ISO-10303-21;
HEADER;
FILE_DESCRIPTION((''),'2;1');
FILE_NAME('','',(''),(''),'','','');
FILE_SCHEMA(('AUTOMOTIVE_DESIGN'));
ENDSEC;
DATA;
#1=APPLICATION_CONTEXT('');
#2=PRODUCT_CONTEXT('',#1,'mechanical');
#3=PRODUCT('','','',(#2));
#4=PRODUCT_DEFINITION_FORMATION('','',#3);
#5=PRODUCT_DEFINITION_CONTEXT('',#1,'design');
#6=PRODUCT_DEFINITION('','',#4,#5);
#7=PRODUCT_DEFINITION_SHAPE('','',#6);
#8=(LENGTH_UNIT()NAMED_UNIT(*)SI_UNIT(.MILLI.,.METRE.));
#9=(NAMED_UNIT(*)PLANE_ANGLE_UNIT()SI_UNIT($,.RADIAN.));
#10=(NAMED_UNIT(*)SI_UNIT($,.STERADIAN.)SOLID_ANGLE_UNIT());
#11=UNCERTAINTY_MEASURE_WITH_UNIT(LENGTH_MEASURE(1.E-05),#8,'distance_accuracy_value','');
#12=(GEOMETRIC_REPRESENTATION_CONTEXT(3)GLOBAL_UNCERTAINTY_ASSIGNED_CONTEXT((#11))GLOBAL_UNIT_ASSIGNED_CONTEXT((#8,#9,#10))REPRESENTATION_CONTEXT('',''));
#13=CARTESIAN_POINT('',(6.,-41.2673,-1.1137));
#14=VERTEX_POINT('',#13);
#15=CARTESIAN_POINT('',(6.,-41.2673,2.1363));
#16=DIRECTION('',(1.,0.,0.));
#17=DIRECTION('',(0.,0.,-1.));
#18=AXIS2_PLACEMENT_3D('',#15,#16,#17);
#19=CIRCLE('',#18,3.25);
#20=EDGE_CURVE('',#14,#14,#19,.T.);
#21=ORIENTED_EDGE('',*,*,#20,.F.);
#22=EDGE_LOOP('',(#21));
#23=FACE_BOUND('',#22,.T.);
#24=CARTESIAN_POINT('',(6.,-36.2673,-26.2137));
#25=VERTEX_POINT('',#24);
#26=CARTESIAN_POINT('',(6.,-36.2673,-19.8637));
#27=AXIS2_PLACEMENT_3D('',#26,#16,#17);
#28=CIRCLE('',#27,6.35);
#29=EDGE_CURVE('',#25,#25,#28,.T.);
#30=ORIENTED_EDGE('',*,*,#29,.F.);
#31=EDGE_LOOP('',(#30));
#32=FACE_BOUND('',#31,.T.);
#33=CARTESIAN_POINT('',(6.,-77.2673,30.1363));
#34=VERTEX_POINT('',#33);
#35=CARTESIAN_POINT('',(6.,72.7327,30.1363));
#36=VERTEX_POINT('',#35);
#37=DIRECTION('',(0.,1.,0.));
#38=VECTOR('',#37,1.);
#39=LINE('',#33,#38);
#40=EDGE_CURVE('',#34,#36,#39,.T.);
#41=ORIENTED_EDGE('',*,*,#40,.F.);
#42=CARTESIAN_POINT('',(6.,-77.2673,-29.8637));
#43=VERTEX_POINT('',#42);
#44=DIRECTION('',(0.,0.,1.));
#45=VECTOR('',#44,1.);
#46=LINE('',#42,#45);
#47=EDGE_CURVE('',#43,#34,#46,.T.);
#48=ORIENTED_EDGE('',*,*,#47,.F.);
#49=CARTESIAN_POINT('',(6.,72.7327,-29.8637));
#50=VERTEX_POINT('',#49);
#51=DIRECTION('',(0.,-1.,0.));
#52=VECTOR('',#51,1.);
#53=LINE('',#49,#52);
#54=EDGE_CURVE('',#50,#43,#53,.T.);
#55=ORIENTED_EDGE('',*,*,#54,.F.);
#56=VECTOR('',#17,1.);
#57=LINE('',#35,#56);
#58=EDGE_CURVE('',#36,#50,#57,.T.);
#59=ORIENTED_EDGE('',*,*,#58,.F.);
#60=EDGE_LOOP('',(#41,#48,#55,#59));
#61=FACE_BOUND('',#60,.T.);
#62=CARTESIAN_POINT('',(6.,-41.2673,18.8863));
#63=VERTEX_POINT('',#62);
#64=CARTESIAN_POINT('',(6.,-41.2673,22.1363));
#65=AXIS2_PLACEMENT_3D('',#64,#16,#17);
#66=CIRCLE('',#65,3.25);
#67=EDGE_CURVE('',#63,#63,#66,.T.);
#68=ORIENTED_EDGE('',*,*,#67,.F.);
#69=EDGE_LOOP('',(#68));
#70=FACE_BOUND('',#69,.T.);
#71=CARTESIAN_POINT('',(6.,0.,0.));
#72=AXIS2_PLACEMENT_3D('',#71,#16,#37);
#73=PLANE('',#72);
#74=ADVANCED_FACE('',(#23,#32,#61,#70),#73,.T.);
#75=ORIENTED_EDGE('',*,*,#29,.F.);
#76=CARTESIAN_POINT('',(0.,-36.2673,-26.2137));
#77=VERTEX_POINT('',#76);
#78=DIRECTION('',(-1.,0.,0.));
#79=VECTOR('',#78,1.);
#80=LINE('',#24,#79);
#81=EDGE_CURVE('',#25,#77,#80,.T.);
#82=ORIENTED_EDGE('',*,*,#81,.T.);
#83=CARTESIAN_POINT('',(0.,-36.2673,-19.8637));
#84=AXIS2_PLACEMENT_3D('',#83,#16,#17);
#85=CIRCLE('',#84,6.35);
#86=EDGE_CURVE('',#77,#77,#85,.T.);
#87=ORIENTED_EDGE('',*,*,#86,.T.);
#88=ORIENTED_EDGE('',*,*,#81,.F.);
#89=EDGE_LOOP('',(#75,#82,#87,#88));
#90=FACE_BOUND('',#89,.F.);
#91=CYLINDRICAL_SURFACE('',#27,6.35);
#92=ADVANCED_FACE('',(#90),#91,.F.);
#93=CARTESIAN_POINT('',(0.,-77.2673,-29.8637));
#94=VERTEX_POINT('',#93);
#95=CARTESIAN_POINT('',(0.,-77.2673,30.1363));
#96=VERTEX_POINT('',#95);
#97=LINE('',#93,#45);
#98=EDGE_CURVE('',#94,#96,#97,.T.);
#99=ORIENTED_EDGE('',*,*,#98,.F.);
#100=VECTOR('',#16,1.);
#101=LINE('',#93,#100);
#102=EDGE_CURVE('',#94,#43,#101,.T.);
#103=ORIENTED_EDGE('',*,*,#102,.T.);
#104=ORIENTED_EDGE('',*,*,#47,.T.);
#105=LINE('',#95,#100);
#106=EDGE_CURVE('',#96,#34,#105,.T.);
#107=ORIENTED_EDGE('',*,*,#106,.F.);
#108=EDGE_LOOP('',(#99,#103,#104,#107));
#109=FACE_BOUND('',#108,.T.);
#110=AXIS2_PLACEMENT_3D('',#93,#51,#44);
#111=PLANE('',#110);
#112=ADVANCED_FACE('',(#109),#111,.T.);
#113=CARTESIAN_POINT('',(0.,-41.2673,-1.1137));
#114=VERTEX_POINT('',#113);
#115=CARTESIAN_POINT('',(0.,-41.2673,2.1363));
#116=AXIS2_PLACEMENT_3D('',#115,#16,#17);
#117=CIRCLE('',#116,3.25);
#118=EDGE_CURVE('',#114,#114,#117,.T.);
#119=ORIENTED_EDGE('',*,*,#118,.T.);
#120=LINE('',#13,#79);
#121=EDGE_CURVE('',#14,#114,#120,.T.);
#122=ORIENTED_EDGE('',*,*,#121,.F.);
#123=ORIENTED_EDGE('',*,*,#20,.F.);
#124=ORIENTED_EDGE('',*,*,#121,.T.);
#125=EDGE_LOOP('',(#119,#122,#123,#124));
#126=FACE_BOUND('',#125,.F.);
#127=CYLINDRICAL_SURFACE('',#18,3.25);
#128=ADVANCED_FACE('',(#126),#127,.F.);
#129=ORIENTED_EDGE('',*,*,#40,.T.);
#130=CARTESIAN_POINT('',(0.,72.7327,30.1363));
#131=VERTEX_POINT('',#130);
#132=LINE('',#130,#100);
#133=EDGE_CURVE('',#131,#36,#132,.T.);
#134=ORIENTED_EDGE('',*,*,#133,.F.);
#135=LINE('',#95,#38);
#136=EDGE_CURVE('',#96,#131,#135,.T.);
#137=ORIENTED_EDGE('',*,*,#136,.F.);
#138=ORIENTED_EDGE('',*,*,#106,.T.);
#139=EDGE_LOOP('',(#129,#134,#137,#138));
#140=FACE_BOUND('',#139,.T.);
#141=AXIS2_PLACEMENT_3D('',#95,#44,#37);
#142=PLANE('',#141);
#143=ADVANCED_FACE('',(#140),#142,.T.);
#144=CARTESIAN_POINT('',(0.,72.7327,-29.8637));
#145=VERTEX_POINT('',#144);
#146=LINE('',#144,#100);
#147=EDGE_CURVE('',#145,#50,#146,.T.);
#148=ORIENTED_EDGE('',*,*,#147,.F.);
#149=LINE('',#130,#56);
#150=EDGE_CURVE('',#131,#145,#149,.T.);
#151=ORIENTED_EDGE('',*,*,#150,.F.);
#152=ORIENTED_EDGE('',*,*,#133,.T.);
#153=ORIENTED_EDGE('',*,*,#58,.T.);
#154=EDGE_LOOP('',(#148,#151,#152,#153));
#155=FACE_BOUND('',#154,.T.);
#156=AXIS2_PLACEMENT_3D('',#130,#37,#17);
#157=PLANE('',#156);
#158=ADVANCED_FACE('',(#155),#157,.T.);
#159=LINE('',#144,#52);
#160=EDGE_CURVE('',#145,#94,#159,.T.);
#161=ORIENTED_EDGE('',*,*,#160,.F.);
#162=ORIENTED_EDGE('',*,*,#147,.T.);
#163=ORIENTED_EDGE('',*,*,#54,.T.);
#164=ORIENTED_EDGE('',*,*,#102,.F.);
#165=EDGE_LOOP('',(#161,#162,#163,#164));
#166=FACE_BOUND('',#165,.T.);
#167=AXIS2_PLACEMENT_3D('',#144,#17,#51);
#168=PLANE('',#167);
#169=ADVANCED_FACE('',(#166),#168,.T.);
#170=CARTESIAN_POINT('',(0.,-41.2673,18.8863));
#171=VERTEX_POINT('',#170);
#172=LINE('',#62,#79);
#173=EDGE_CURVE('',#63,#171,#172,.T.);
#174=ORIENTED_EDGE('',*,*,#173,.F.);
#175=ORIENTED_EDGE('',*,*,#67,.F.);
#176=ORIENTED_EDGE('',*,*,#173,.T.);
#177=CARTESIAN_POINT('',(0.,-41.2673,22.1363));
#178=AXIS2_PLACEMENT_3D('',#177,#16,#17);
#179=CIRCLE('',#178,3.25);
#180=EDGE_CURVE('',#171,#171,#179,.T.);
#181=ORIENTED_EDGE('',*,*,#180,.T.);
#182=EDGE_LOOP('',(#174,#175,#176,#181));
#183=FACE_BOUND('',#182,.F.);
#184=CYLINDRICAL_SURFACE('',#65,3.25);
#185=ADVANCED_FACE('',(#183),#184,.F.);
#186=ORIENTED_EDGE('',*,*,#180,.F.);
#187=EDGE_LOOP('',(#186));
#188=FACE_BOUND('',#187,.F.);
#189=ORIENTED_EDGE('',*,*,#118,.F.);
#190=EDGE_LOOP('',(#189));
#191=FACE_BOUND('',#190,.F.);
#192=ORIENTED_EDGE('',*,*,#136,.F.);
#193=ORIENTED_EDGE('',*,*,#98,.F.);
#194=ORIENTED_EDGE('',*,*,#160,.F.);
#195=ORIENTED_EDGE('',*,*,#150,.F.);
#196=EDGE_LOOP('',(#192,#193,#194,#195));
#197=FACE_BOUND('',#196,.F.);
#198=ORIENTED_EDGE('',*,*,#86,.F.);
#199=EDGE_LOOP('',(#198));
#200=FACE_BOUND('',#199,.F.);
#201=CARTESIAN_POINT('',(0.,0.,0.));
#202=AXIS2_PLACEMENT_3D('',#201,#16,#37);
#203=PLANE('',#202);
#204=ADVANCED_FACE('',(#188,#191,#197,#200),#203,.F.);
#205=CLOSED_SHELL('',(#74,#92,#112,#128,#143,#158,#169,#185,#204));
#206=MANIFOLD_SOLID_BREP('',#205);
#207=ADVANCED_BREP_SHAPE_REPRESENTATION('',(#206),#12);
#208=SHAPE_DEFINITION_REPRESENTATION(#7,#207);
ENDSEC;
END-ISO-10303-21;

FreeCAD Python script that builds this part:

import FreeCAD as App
import Part
import Sketcher

V = App.Vector


def add_polygon(sketch, points):
    """Adds a closed chain of lines whose ends are joined by coincident constraints."""
    first, n = sketch.GeometryCount, len(points)
    for a, b in zip(points, points[1:] + points[:1]):
        sketch.addGeometry(Part.LineSegment(App.Vector(*a, 0), App.Vector(*b, 0)), False)
    for i in range(n):
        sketch.addConstraint(Sketcher.Constraint("Coincident", first + i, 2, first + (i + 1) % n, 1))

doc = App.newDocument("Part")
params = doc.addObject("Spreadsheet::Sheet", "Params")
for row, (alias, value) in enumerate([
    ("sketch1_width", "150 mm"),
    ("sketch1_height", "60 mm"),
    ("pad1_length", "6 mm"),
    ("sketch2_diameter", "6.5 mm"),
    ("sketch2_diameter2", "12.7 mm"),
    ("pocket1_length", "6 mm"),
], start=1):
    params.set(f"A{row}", alias)
    params.set(f"B{row}", "=" + value)
    params.setAlias(f"B{row}", alias)

body = doc.addObject("PartDesign::Body", "Body")

# Sketch on YZ plane
sketch1 = body.newObject("Sketcher::SketchObject", "Sketch")
sketch1.AttachmentSupport = (doc.getObject("YZ_Plane"), [""])
sketch1.MapMode = "FlatFace"
add_polygon(sketch1, [(-77, -30), (73, -30), (73, 30), (-77, 30)])  # lines 0-3
sketch1.addConstraint([
    Sketcher.Constraint("Horizontal", 0),
    Sketcher.Constraint("Vertical", 1),
    Sketcher.Constraint("Horizontal", 2),
    Sketcher.Constraint("Vertical", 3),
    Sketcher.Constraint("DistanceX", 0, 1, 0, 2, 150.0),
    Sketcher.Constraint("DistanceY", 1, 1, 1, 2, 60.0),
    Sketcher.Constraint("DistanceX", -1, 1, 0, 2, 72.7327),
    Sketcher.Constraint("DistanceY", 0, 2, -1, 1, 29.8637),
])
sketch1.setExpression("Constraints[8]", "Params.sketch1_width")
sketch1.setExpression("Constraints[9]", "Params.sketch1_height")
pad1 = body.newObject("PartDesign::Pad", "Pad")
pad1.Profile = sketch1
pad1.setExpression("Length", "Params.pad1_length")

# Sketch on YZ plane
sketch2 = body.newObject("Sketcher::SketchObject", "Sketch001")
sketch2.AttachmentSupport = (doc.getObject("YZ_Plane"), [""])
sketch2.MapMode = "FlatFace"
sketch2.AttachmentOffset = App.Placement(V(0, 0, 6), App.Rotation())
sketch2.addGeometry([
    Part.Circle(V(-41.3, 2.1, 0), V(0, 0, 1), 3.2),
    Part.Circle(V(-41.3, 22.1, 0), V(0, 0, 1), 3.2),
    Part.Circle(V(-36.3, -19.9, 0), V(0, 0, 1), 6.3),
], False)
sketch2.addConstraint([
    Sketcher.Constraint("Equal", 0, 1),
    Sketcher.Constraint("Vertical", 0, 3, 1, 3),
    Sketcher.Constraint("Diameter", 0, 6.5),
    Sketcher.Constraint("Diameter", 2, 12.7),
    Sketcher.Constraint("DistanceY", 0, 3, 1, 3, 20.0),
    Sketcher.Constraint("DistanceX", 0, 3, 2, 3, 5.0),
    Sketcher.Constraint("DistanceY", 2, 3, 0, 3, 22.0),
    Sketcher.Constraint("DistanceX", 0, 3, -1, 1, 41.2673),
    Sketcher.Constraint("DistanceY", -1, 1, 0, 3, 2.1363),
])
sketch2.setExpression("Constraints[2]", "Params.sketch2_diameter")
sketch2.setExpression("Constraints[3]", "Params.sketch2_diameter2")
pocket1 = body.newObject("PartDesign::Pocket", "Pocket")
pocket1.Profile = sketch2
pocket1.setExpression("Length", "Params.pocket1_length")

doc.recompute()
